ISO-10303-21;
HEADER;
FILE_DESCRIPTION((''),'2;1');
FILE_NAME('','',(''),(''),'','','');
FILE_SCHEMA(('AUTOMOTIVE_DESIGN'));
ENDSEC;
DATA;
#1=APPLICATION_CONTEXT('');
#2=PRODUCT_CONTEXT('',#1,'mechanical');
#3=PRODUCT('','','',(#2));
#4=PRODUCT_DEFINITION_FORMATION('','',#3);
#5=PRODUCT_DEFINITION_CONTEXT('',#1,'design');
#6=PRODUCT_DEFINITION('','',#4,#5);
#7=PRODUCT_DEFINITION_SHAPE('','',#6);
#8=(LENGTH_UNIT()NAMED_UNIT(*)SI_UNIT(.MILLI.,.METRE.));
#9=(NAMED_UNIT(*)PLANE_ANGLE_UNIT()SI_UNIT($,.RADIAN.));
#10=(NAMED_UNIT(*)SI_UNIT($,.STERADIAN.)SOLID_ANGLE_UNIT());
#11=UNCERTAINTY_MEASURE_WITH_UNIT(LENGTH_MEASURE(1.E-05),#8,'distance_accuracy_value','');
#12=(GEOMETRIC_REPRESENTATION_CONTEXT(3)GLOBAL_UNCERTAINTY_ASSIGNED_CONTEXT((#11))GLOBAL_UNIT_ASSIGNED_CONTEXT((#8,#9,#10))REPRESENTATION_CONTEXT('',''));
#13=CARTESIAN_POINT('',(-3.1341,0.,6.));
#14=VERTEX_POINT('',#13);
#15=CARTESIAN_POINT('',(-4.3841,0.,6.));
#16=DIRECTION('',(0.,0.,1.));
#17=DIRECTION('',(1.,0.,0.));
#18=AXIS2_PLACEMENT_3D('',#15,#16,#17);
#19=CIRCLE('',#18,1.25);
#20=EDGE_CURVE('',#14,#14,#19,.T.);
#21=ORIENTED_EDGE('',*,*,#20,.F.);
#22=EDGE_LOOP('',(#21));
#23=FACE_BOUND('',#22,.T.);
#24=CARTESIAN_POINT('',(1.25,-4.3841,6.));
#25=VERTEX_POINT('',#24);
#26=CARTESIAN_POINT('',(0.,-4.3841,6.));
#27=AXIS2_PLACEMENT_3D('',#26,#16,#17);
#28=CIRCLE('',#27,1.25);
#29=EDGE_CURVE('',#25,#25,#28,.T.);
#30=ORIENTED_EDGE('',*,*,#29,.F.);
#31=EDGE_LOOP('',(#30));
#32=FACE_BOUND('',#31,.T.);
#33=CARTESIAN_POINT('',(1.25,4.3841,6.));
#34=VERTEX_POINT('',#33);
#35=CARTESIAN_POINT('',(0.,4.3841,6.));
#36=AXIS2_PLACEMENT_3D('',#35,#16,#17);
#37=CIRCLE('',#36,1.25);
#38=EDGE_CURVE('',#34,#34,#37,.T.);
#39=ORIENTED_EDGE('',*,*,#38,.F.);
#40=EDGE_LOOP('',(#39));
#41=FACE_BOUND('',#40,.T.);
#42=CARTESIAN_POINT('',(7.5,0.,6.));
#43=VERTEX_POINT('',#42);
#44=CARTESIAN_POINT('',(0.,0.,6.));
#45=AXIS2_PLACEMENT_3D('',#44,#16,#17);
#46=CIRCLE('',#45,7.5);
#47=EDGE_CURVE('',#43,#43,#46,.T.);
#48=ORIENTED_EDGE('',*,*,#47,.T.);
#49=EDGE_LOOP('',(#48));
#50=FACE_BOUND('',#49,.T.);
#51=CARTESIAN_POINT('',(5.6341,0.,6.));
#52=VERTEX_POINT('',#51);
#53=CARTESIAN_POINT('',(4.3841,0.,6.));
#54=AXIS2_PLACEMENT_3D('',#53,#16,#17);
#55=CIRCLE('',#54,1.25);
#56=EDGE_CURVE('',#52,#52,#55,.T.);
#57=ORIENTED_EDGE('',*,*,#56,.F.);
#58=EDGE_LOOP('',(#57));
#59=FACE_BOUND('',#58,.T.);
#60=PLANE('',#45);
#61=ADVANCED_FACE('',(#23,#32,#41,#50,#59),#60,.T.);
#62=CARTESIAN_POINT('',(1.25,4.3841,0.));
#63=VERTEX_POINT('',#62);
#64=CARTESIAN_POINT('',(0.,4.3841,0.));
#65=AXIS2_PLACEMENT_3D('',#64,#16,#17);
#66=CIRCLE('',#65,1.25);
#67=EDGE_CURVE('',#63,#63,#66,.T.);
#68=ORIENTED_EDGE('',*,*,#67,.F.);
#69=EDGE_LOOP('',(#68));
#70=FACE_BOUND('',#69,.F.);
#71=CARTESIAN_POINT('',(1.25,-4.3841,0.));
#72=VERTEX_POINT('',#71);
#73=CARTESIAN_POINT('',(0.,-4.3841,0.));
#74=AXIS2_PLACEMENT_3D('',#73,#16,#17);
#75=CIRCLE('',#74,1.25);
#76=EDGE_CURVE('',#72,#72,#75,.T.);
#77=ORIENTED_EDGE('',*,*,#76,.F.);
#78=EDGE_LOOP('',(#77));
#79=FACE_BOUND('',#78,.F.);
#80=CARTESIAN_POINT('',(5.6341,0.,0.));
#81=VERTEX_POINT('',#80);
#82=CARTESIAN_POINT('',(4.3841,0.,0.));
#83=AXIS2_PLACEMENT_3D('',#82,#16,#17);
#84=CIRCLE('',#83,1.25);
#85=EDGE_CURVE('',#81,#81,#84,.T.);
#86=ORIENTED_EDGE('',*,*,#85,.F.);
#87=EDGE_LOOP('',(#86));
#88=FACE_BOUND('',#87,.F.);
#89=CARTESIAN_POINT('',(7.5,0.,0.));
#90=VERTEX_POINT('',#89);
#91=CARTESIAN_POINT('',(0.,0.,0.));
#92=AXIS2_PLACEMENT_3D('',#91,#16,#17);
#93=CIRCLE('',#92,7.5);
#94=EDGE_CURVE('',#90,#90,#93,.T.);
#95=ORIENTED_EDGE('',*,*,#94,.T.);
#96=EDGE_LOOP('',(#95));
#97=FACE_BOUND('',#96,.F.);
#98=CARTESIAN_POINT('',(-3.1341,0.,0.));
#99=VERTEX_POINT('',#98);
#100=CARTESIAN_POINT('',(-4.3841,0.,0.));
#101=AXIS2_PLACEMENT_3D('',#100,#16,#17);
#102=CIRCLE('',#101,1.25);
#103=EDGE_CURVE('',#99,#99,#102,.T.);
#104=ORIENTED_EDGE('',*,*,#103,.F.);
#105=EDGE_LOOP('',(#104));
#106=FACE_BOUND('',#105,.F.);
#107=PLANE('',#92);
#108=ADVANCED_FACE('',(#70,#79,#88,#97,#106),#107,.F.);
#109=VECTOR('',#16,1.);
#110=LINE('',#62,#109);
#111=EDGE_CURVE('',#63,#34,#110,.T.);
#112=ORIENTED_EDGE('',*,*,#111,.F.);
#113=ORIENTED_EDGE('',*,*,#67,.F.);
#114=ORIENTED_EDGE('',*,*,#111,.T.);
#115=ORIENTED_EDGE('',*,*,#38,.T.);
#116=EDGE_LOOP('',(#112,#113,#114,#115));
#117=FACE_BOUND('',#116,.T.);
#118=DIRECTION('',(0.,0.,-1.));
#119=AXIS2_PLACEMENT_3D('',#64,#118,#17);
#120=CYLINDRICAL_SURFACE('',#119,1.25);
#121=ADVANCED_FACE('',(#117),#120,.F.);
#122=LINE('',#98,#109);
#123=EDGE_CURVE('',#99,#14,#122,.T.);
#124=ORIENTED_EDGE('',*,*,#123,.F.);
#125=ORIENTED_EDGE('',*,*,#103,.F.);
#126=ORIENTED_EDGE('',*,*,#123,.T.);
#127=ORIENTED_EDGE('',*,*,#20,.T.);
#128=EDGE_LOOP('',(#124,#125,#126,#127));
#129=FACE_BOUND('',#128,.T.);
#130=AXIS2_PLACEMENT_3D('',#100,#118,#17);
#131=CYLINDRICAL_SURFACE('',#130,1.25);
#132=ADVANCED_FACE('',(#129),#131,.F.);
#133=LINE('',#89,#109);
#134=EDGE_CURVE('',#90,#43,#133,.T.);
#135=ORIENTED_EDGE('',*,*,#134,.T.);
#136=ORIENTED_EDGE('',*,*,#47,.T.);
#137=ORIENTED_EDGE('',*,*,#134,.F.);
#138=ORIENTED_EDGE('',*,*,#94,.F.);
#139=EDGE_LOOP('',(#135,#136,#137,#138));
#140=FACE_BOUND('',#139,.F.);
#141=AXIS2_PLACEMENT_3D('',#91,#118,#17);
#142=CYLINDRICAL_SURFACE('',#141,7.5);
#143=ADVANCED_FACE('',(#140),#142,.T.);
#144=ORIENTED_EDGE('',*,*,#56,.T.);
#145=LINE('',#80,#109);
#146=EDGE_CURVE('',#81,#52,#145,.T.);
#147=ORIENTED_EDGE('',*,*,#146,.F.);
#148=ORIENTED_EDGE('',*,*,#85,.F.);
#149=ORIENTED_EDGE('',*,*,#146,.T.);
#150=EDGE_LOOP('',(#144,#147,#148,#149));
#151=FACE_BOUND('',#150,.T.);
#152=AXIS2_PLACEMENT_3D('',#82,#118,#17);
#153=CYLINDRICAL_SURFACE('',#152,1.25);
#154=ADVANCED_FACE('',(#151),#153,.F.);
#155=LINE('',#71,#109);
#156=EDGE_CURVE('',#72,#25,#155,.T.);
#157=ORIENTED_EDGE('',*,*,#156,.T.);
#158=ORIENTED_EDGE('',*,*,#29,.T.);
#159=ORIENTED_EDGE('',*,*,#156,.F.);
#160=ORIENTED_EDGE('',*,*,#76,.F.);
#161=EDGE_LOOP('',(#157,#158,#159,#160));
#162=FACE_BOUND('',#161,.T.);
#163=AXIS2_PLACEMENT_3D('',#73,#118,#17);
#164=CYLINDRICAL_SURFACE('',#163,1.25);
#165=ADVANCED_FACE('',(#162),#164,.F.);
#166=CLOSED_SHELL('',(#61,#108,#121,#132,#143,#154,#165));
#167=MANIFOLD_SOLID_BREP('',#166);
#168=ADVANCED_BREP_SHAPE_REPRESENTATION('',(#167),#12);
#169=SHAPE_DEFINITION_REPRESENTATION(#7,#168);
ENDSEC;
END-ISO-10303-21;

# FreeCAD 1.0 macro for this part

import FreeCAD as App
import Part
import Sketcher
from FreeCAD import Vector

doc = App.newDocument("Part")
body = doc.addObject("PartDesign::Body", "Body")

# Sketch on XY plane
sketch1 = body.newObject("Sketcher::SketchObject", "Sketch")
sketch1.AttachmentSupport = (doc.getObject("XY_Plane"), [""])
sketch1.MapMode = "FlatFace"
sketch1.addGeometry([
    Part.Circle(Vector(0, 0, 0), Vector(0, 0, 1), 7.5),  # 0
    Part.Circle(Vector(0, -4.3841, 0), Vector(0, 0, 1), 1.25),  # 1
    Part.Circle(Vector(-4.3841, 0, 0), Vector(0, 0, 1), 1.25),  # 2
    Part.Circle(Vector(4.3841, 0, 0), Vector(0, 0, 1), 1.25),  # 3
    Part.Circle(Vector(0, 4.3841, 0), Vector(0, 0, 1), 1.25),  # 4
], False)
sketch1.addConstraint([
    Sketcher.Constraint("Coincident", 0, 3, -1, 1),
    Sketcher.Constraint("Equal", 1, 2),
    Sketcher.Constraint("Equal", 2, 3),
    Sketcher.Constraint("Equal", 3, 4),
    Sketcher.Constraint("Symmetric", 2, 3, 3, 3, -1, 1),
    Sketcher.Constraint("Symmetric", 1, 3, 4, 3, -1, 1),
    Sketcher.Constraint("PointOnObject", 1, 3, -2),
    Sketcher.Constraint("PointOnObject", 2, 3, -1),
    Sketcher.Constraint("Diameter", 0, 15.0),
    Sketcher.Constraint("Diameter", 1, 2.5),
    Sketcher.Constraint("DistanceY", 1, 3, -1, 1, 4.384),
    Sketcher.Constraint("DistanceX", 2, 3, -1, 1, 4.384),
])
pad1 = body.newObject("PartDesign::Pad", "Pad")
pad1.Profile = sketch1
pad1.Length = 6

doc.recompute()
